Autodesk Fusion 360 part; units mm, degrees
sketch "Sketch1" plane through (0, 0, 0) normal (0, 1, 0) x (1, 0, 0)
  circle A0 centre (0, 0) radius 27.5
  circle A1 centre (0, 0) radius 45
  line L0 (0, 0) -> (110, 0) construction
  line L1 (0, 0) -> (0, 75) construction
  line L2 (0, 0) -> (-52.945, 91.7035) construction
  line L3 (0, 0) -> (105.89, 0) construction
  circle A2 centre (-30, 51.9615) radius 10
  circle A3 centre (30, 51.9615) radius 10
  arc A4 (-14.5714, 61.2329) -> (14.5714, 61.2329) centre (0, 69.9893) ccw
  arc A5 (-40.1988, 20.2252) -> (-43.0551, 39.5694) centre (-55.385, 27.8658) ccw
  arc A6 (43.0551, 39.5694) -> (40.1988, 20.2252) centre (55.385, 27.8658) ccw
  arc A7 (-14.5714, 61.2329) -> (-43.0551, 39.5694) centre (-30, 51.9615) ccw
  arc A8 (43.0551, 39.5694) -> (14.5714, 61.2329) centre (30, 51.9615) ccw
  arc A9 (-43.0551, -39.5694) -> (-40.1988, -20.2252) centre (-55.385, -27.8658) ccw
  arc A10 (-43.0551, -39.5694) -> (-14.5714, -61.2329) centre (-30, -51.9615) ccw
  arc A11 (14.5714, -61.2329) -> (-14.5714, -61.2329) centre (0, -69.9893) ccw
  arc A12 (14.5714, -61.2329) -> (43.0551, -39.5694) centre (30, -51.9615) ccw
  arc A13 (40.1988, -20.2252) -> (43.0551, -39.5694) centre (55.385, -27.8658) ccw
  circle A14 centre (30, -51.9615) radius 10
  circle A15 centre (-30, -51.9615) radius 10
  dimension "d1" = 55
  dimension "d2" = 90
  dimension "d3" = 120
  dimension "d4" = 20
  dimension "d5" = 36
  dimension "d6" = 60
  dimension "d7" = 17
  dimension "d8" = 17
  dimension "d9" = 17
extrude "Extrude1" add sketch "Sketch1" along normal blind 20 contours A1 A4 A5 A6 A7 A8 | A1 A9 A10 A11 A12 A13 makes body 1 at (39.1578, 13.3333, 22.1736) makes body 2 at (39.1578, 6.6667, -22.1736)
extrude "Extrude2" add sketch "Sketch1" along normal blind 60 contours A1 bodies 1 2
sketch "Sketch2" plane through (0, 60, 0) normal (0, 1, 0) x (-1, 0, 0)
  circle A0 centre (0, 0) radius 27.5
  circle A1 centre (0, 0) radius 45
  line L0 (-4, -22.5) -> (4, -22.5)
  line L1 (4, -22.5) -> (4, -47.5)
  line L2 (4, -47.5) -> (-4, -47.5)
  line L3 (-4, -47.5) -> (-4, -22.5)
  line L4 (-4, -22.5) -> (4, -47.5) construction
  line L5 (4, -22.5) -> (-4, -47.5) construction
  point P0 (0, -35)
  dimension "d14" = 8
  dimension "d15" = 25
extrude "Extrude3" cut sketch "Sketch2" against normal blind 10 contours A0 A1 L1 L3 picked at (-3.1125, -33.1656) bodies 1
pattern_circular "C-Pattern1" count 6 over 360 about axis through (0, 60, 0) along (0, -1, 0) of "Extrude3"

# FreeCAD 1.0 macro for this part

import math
import FreeCAD as App
import Part
import Sketcher

V = App.Vector
Q = App.Units.Quantity

doc = App.newDocument("Part")
body = doc.addObject("PartDesign::Body", "Body")
body.AllowCompound = True

# Sketch on XZ plane
sketch1 = body.newObject("Sketcher::SketchObject", "Sketch")
sketch1.AttachmentSupport = (doc.getObject("XZ_Plane"), [""])
sketch1.MapMode = "FlatFace"
sketch1.addGeometry([
    Part.ArcOfCircle(Part.Circle(V(0, 0, 0), V(0, 0, 1), 45), math.radians(-153), math.radians(-27)),  # 0
    Part.ArcOfCircle(Part.Circle(V(55, -28, 0), V(0, 0, 1), 17), math.radians(153), math.radians(224)),  # 1
    Part.ArcOfCircle(Part.Circle(V(30, -52, 0), V(0, 0, 1), 18), math.radians(-149), math.radians(44)),  # 2
    Part.ArcOfCircle(Part.Circle(V(0, -70, 0), V(0, 0, 1), 17), math.radians(31), math.radians(149)),  # 3
    Part.ArcOfCircle(Part.Circle(V(-30, -52, 0), V(0, 0, 1), 18), math.radians(136), math.radians(329)),  # 4
    Part.ArcOfCircle(Part.Circle(V(-55, -28, 0), V(0, 0, 1), 17), math.radians(-44), math.radians(27)),  # 5
    Part.Circle(V(-30, -52, 0), V(0, 0, 1), 10),  # 6
    Part.Circle(V(30, -52, 0), V(0, 0, 1), 10),  # 7
    Part.ArcOfCircle(Part.Circle(V(55, 28, 0), V(0, 0, 1), 17), math.radians(136), math.radians(207)),  # 8
    Part.ArcOfCircle(Part.Circle(V(0, 0, 0), V(0, 0, 1), 45), math.radians(27), math.radians(153)),  # 9
    Part.ArcOfCircle(Part.Circle(V(-55, 28, 0), V(0, 0, 1), 17), math.radians(-27), math.radians(44)),  # 10
    Part.ArcOfCircle(Part.Circle(V(-30, 52, 0), V(0, 0, 1), 18), math.radians(31), math.radians(224)),  # 11
    Part.ArcOfCircle(Part.Circle(V(0, 70, 0), V(0, 0, 1), 17), math.radians(-149), math.radians(-31)),  # 12
    Part.ArcOfCircle(Part.Circle(V(30, 52, 0), V(0, 0, 1), 18), math.radians(-44), math.radians(149)),  # 13
    Part.Circle(V(-30, 52, 0), V(0, 0, 1), 10),  # 14
    Part.Circle(V(30, 52, 0), V(0, 0, 1), 10),  # 15
], False)
sketch1.addConstraint([
    Sketcher.Constraint("Tangent", 0, 2, 1, 1),
    Sketcher.Constraint("Tangent", 1, 2, 2, 2),
    Sketcher.Constraint("Tangent", 2, 1, 3, 1),
    Sketcher.Constraint("Tangent", 3, 2, 4, 2),
    Sketcher.Constraint("Tangent", 4, 1, 5, 1),
    Sketcher.Constraint("Tangent", 5, 2, 0, 1),
    Sketcher.Constraint("Tangent", 8, 2, 9, 1),
    Sketcher.Constraint("Tangent", 9, 2, 10, 1),
    Sketcher.Constraint("Tangent", 10, 2, 11, 2),
    Sketcher.Constraint("Tangent", 11, 1, 12, 1),
    Sketcher.Constraint("Tangent", 12, 2, 13, 2),
    Sketcher.Constraint("Tangent", 13, 1, 8, 1),
    Sketcher.Constraint("Coincident", 0, 3, -1, 1),
    Sketcher.Constraint("Coincident", 9, 3, -1, 1),
    Sketcher.Constraint("Coincident", 6, 3, 4, 3),
    Sketcher.Constraint("Coincident", 7, 3, 2, 3),
    Sketcher.Constraint("Coincident", 14, 3, 11, 3),
    Sketcher.Constraint("Coincident", 15, 3, 13, 3),
    Sketcher.Constraint("Equal", 1, 3),
    Sketcher.Constraint("Equal", 2, 4),
    Sketcher.Constraint("Equal", 3, 5),
    Sketcher.Constraint("Equal", 6, 7),
    Sketcher.Constraint("Equal", 5, 8),
    Sketcher.Constraint("Equal", 0, 9),
    Sketcher.Constraint("Equal", 8, 10),
    Sketcher.Constraint("Equal", 4, 11),
    Sketcher.Constraint("Equal", 10, 12),
    Sketcher.Constraint("Equal", 11, 13),
    Sketcher.Constraint("Equal", 7, 14),
    Sketcher.Constraint("Equal", 14, 15),
    Sketcher.Constraint("Symmetric", 2, 3, 11, 3, -1, 1),
    Sketcher.Constraint("Symmetric", 4, 3, 13, 3, -1, 1),
    Sketcher.Constraint("Symmetric", 2, 3, 4, 3, -2),
    Sketcher.Constraint("Diameter", 6, Q("20 mm")),
    Sketcher.Constraint("Radius", 0, Q("45 mm")),
    Sketcher.Constraint("Radius", 1, Q("17 mm")),
    Sketcher.Constraint("Radius", 2, Q("18 mm")),
    Sketcher.Constraint("DistanceX", 4, 3, 2, 3, Q("60 mm")),
    Sketcher.Constraint("DistanceX", 5, 3, 1, 3, Q("110.77 mm")),
])
pad1 = body.newObject("PartDesign::Pad", "Pad")
pad1.Profile = sketch1
pad1.Length = 20
pad1.Reversed = True

# Sketch on XZ plane
sketch2 = body.newObject("Sketcher::SketchObject", "Sketch001")
sketch2.AttachmentSupport = (doc.getObject("XZ_Plane"), [""])
sketch2.MapMode = "FlatFace"
sketch2.addGeometry([
    Part.Circle(V(0, 0, 0), V(0, 0, 1), 45),
    Part.Circle(V(0, 0, 0), V(0, 0, 1), 28),
], False)
sketch2.addConstraint([
    Sketcher.Constraint("Coincident", 0, 3, -1, 1),
    Sketcher.Constraint("Coincident", 1, 3, -1, 1),
    Sketcher.Constraint("Diameter", 0, Q("90 mm")),
    Sketcher.Constraint("Diameter", 1, Q("55 mm")),
])
pad2 = body.newObject("PartDesign::Pad", "Pad001")
pad2.Profile = sketch2
pad2.Length = 60
pad2.Reversed = True

# Sketch on XZ plane
sketch3 = body.newObject("Sketcher::SketchObject", "Sketch002")
sketch3.AttachmentSupport = (doc.getObject("XZ_Plane"), [""])
sketch3.MapMode = "FlatFace"
sketch3.AttachmentOffset = App.Placement(V(0, 0, -60), App.Rotation())
sketch3.addGeometry([
    Part.ArcOfCircle(Part.Circle(V(0, 0, 0), V(0, 0, 1), 28), math.radians(-98.36), math.radians(-81.64)),
    Part.LineSegment(V(4, -27, 0), V(4, -45, 0)),
    Part.ArcOfCircle(Part.Circle(V(0, 0, 0), V(0, 0, 1), 45), math.radians(-95.1), math.radians(-84.9)),
    Part.LineSegment(V(-4, -45, 0), V(-4, -27, 0)),
], False)
sketch3.addConstraint([
    Sketcher.Constraint("Coincident", 0, 2, 1, 1),
    Sketcher.Constraint("Coincident", 1, 2, 2, 2),
    Sketcher.Constraint("Coincident", 2, 1, 3, 1),
    Sketcher.Constraint("Coincident", 3, 2, 0, 1),
    Sketcher.Constraint("Vertical", 1),
    Sketcher.Constraint("Vertical", 3),
    Sketcher.Constraint("Coincident", 0, 3, -1, 1),
    Sketcher.Constraint("Coincident", 2, 3, -1, 1),
    Sketcher.Constraint("Horizontal", 1, 2, 2, 1),
    Sketcher.Constraint("Radius", 2, Q("45 mm")),
    Sketcher.Constraint("DistanceX", 2, 1, 1, 2, Q("8 mm")),
    Sketcher.Constraint("Radius", 0, Q("27.5 mm")),
])
pocket1 = body.newObject("PartDesign::Pocket", "Pocket")
pocket1.Profile = sketch3
pocket1.Length = 10
pocket1.Reversed = True
doc.recompute()

polarpattern = body.newObject("PartDesign::PolarPattern", "PolarPattern")
polarpattern.Originals = [pocket1]
polarpattern.Axis = (doc.getObject("Y_Axis"), [""])
polarpattern.Angle = 360
polarpattern.Occurrences = 6
body.Tip = polarpattern

doc.recompute()
